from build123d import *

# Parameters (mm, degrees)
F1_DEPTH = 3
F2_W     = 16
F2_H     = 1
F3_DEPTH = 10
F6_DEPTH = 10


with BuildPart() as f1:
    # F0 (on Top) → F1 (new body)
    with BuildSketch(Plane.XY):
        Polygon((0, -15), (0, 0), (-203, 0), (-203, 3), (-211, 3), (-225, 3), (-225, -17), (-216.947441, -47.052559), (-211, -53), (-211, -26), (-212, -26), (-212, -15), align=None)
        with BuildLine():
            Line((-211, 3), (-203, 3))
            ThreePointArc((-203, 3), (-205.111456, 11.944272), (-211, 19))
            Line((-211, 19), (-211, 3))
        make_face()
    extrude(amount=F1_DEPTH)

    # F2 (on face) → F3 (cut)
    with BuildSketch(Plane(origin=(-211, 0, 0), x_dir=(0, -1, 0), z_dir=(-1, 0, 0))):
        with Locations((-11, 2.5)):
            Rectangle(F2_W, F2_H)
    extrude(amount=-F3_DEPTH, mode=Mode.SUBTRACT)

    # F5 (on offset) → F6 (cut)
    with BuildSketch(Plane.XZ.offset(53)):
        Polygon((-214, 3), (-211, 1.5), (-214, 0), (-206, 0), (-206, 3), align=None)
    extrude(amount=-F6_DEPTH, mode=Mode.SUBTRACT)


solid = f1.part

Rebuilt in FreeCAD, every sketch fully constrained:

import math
import FreeCAD as App
import Part
import Sketcher
from FreeCAD import Vector
Q = App.Units.Quantity

doc = App.newDocument("Part")
body = doc.addObject("PartDesign::Body", "Body")

# Sketch on XY plane
sketch1 = body.newObject("Sketcher::SketchObject", "Sketch")
sketch1.AttachmentSupport = (doc.getObject("XY_Plane"), [""])
sketch1.MapMode = "FlatFace"
sketch1.addGeometry(Part.LineSegment(Vector(0, -15, 0), Vector(0, 0, 0)), False)
sketch1.addGeometry(Part.LineSegment(Vector(0, 0, 0), Vector(-203, 0, 0)), False)
sketch1.addGeometry(Part.LineSegment(Vector(-203, 0, 0), Vector(-203, 3, 0)), False)
sketch1.addGeometry(Part.ArcOfCircle(Part.Circle(Vector(-223, 3, 0), Vector(0, 0, 1), 20), math.radians(0), math.radians(53)), False)
sketch1.addGeometry(Part.LineSegment(Vector(-211, 19, 0), Vector(-211, 3, 0)), False)
sketch1.addGeometry(Part.LineSegment(Vector(-211, 3, 0), Vector(-225, 3, 0)), False)
sketch1.addGeometry(Part.LineSegment(Vector(-225, 3, 0), Vector(-225, -17, 0)), False)
sketch1.addGeometry(Part.LineSegment(Vector(-225, -17, 0), Vector(-216.9, -47.1, 0)), False)
sketch1.addGeometry(Part.LineSegment(Vector(-216.9, -47.1, 0), Vector(-211, -53, 0)), False)
sketch1.addGeometry(Part.LineSegment(Vector(-211, -53, 0), Vector(-211, -26, 0)), False)
sketch1.addGeometry(Part.LineSegment(Vector(-211, -26, 0), Vector(-212, -26, 0)), False)
sketch1.addGeometry(Part.LineSegment(Vector(-212, -26, 0), Vector(-212, -15, 0)), False)
sketch1.addGeometry(Part.LineSegment(Vector(-212, -15, 0), Vector(0, -15, 0)), False)
sketch1.addConstraint(Sketcher.Constraint("Coincident", 0, 2, 1, 1))
sketch1.addConstraint(Sketcher.Constraint("Coincident", 1, 2, 2, 1))
sketch1.addConstraint(Sketcher.Constraint("Tangent", 2, 2, 3, 1))
sketch1.addConstraint(Sketcher.Constraint("Coincident", 3, 2, 4, 1))
sketch1.addConstraint(Sketcher.Constraint("Coincident", 4, 2, 5, 1))
sketch1.addConstraint(Sketcher.Constraint("Coincident", 5, 2, 6, 1))
sketch1.addConstraint(Sketcher.Constraint("Coincident", 6, 2, 7, 1))
sketch1.addConstraint(Sketcher.Constraint("Coincident", 7, 2, 8, 1))
sketch1.addConstraint(Sketcher.Constraint("Coincident", 8, 2, 9, 1))
sketch1.addConstraint(Sketcher.Constraint("Coincident", 9, 2, 10, 1))
sketch1.addConstraint(Sketcher.Constraint("Coincident", 10, 2, 11, 1))
sketch1.addConstraint(Sketcher.Constraint("Coincident", 11, 2, 12, 1))
sketch1.addConstraint(Sketcher.Constraint("Coincident", 12, 2, 0, 1))
sketch1.addConstraint(Sketcher.Constraint("Vertical", 0))
sketch1.addConstraint(Sketcher.Constraint("Horizontal", 1))
sketch1.addConstraint(Sketcher.Constraint("Vertical", 2))
sketch1.addConstraint(Sketcher.Constraint("Vertical", 4))
sketch1.addConstraint(Sketcher.Constraint("Horizontal", 5))
sketch1.addConstraint(Sketcher.Constraint("Vertical", 6))
sketch1.addConstraint(Sketcher.Constraint("Vertical", 9))
sketch1.addConstraint(Sketcher.Constraint("Horizontal", 10))
sketch1.addConstraint(Sketcher.Constraint("Vertical", 11))
sketch1.addConstraint(Sketcher.Constraint("Horizontal", 12))
sketch1.addConstraint(Sketcher.Constraint("Coincident", 0, 2, -1, 1))
sketch1.addConstraint(Sketcher.Constraint("Horizontal", 2, 2, 4, 2))
sketch1.addConstraint(Sketcher.Constraint("Vertical", 4, 2, 8, 2))
sketch1.addConstraint(Sketcher.Constraint("Radius", 3, 19.999998))
sketch1.addConstraint(Sketcher.Constraint("DistanceX", 1, 2, 1, 1, 203.0))
sketch1.addConstraint(Sketcher.Constraint("DistanceX", 5, 2, 5, 1, 14.0))
sketch1.addConstraint(Sketcher.Constraint("DistanceX", 10, 2, 10, 1, 1.0))
sketch1.addConstraint(Sketcher.Constraint("DistanceX", 12, 1, 12, 2, 212.0))
sketch1.addConstraint(Sketcher.Constraint("DistanceY", 0, 1, 0, 2, 15.0))
sketch1.addConstraint(Sketcher.Constraint("DistanceY", 2, 1, 2, 2, 3.0))
sketch1.addConstraint(Sketcher.Constraint("DistanceY", 6, 2, 6, 1, 20.0))
sketch1.addConstraint(Sketcher.Constraint("DistanceY", 9, 1, 9, 2, 27.0))
sketch1.addConstraint(Sketcher.Constraint("DistanceY", 11, 1, 11, 2, 11.0))
sketch1.addConstraint(Sketcher.Constraint("Angle", 7, Q("-75 deg")))
sketch1.addConstraint(Sketcher.Constraint("Angle", 8, Q("-45 deg")))
pad1 = body.newObject("PartDesign::Pad", "Pad")
pad1.Profile = sketch1
pad1.Length = 3

# Sketch on YZ plane
sketch2 = body.newObject("Sketcher::SketchObject", "Sketch001")
sketch2.AttachmentSupport = (doc.getObject("YZ_Plane"), [""])
sketch2.MapMode = "FlatFace"
sketch2.AttachmentOffset = App.Placement(Vector(0, 0, -211), App.Rotation())
sketch2.addGeometry(Part.LineSegment(Vector(19, 3, 0), Vector(19, 2, 0)), False)
sketch2.addGeometry(Part.LineSegment(Vector(19, 2, 0), Vector(3, 2, 0)), False)
sketch2.addGeometry(Part.LineSegment(Vector(3, 2, 0), Vector(3, 3, 0)), False)
sketch2.addGeometry(Part.LineSegment(Vector(3, 3, 0), Vector(19, 3, 0)), False)
sketch2.addConstraint(Sketcher.Constraint("Coincident", 0, 2, 1, 1))
sketch2.addConstraint(Sketcher.Constraint("Coincident", 1, 2, 2, 1))
sketch2.addConstraint(Sketcher.Constraint("Coincident", 2, 2, 3, 1))
sketch2.addConstraint(Sketcher.Constraint("Coincident", 3, 2, 0, 1))
sketch2.addConstraint(Sketcher.Constraint("Vertical", 0))
sketch2.addConstraint(Sketcher.Constraint("Horizontal", 1))
sketch2.addConstraint(Sketcher.Constraint("Vertical", 2))
sketch2.addConstraint(Sketcher.Constraint("Horizontal", 3))
sketch2.addConstraint(Sketcher.Constraint("DistanceX", 1, 2, 1, 1, 16.0))
sketch2.addConstraint(Sketcher.Constraint("DistanceY", 0, 2, 0, 1, 1.0))
sketch2.addConstraint(Sketcher.Constraint("DistanceX", -1, 1, 0, 2, 19.0))
sketch2.addConstraint(Sketcher.Constraint("DistanceY", -1, 1, 0, 2, 2.0))
pocket1 = body.newObject("PartDesign::Pocket", "Pocket")
pocket1.Profile = sketch2
pocket1.Length = 10
pocket1.Reversed = True

# Sketch on XZ plane
sketch3 = body.newObject("Sketcher::SketchObject", "Sketch002")
sketch3.AttachmentSupport = (doc.getObject("XZ_Plane"), [""])
sketch3.MapMode = "FlatFace"
sketch3.AttachmentOffset = App.Placement(Vector(0, 0, 53), App.Rotation())
sketch3.addGeometry(Part.LineSegment(Vector(-214, 3, 0), Vector(-211, 1.5, 0)), False)
sketch3.addGeometry(Part.LineSegment(Vector(-211, 1.5, 0), Vector(-214, 0, 0)), False)
sketch3.addGeometry(Part.LineSegment(Vector(-214, 0, 0), Vector(-206, 0, 0)), False)
sketch3.addGeometry(Part.LineSegment(Vector(-206, 0, 0), Vector(-206, 3, 0)), False)
sketch3.addGeometry(Part.LineSegment(Vector(-206, 3, 0), Vector(-214, 3, 0)), False)
sketch3.addConstraint(Sketcher.Constraint("Coincident", 0, 2, 1, 1))
sketch3.addConstraint(Sketcher.Constraint("Coincident", 1, 2, 2, 1))
sketch3.addConstraint(Sketcher.Constraint("Coincident", 2, 2, 3, 1))
sketch3.addConstraint(Sketcher.Constraint("Coincident", 3, 2, 4, 1))
sketch3.addConstraint(Sketcher.Constraint("Coincident", 4, 2, 0, 1))
sketch3.addConstraint(Sketcher.Constraint("Horizontal", 2))
sketch3.addConstraint(Sketcher.Constraint("Vertical", 3))
sketch3.addConstraint(Sketcher.Constraint("Horizontal", 4))
sketch3.addConstraint(Sketcher.Constraint("PointOnObject", 1, 2, -1))
sketch3.addConstraint(Sketcher.Constraint("Vertical", 1, 2, 4, 2))
sketch3.addConstraint(Sketcher.Constraint("Equal", 0, 1))
sketch3.addConstraint(Sketcher.Constraint("DistanceX", 2, 1, 2, 2, 8.0))
sketch3.addConstraint(Sketcher.Constraint("DistanceY", 3, 1, 3, 2, 3.0))
sketch3.addConstraint(Sketcher.Constraint("DistanceX", 0, 2, -1, 1, 211.0))
sketch3.addConstraint(Sketcher.Constraint("DistanceX", 1, 2, -1, 1, 214.0))
pocket2 = body.newObject("PartDesign::Pocket", "Pocket001")
pocket2.Profile = sketch3
pocket2.Length = 10

doc.recompute()
